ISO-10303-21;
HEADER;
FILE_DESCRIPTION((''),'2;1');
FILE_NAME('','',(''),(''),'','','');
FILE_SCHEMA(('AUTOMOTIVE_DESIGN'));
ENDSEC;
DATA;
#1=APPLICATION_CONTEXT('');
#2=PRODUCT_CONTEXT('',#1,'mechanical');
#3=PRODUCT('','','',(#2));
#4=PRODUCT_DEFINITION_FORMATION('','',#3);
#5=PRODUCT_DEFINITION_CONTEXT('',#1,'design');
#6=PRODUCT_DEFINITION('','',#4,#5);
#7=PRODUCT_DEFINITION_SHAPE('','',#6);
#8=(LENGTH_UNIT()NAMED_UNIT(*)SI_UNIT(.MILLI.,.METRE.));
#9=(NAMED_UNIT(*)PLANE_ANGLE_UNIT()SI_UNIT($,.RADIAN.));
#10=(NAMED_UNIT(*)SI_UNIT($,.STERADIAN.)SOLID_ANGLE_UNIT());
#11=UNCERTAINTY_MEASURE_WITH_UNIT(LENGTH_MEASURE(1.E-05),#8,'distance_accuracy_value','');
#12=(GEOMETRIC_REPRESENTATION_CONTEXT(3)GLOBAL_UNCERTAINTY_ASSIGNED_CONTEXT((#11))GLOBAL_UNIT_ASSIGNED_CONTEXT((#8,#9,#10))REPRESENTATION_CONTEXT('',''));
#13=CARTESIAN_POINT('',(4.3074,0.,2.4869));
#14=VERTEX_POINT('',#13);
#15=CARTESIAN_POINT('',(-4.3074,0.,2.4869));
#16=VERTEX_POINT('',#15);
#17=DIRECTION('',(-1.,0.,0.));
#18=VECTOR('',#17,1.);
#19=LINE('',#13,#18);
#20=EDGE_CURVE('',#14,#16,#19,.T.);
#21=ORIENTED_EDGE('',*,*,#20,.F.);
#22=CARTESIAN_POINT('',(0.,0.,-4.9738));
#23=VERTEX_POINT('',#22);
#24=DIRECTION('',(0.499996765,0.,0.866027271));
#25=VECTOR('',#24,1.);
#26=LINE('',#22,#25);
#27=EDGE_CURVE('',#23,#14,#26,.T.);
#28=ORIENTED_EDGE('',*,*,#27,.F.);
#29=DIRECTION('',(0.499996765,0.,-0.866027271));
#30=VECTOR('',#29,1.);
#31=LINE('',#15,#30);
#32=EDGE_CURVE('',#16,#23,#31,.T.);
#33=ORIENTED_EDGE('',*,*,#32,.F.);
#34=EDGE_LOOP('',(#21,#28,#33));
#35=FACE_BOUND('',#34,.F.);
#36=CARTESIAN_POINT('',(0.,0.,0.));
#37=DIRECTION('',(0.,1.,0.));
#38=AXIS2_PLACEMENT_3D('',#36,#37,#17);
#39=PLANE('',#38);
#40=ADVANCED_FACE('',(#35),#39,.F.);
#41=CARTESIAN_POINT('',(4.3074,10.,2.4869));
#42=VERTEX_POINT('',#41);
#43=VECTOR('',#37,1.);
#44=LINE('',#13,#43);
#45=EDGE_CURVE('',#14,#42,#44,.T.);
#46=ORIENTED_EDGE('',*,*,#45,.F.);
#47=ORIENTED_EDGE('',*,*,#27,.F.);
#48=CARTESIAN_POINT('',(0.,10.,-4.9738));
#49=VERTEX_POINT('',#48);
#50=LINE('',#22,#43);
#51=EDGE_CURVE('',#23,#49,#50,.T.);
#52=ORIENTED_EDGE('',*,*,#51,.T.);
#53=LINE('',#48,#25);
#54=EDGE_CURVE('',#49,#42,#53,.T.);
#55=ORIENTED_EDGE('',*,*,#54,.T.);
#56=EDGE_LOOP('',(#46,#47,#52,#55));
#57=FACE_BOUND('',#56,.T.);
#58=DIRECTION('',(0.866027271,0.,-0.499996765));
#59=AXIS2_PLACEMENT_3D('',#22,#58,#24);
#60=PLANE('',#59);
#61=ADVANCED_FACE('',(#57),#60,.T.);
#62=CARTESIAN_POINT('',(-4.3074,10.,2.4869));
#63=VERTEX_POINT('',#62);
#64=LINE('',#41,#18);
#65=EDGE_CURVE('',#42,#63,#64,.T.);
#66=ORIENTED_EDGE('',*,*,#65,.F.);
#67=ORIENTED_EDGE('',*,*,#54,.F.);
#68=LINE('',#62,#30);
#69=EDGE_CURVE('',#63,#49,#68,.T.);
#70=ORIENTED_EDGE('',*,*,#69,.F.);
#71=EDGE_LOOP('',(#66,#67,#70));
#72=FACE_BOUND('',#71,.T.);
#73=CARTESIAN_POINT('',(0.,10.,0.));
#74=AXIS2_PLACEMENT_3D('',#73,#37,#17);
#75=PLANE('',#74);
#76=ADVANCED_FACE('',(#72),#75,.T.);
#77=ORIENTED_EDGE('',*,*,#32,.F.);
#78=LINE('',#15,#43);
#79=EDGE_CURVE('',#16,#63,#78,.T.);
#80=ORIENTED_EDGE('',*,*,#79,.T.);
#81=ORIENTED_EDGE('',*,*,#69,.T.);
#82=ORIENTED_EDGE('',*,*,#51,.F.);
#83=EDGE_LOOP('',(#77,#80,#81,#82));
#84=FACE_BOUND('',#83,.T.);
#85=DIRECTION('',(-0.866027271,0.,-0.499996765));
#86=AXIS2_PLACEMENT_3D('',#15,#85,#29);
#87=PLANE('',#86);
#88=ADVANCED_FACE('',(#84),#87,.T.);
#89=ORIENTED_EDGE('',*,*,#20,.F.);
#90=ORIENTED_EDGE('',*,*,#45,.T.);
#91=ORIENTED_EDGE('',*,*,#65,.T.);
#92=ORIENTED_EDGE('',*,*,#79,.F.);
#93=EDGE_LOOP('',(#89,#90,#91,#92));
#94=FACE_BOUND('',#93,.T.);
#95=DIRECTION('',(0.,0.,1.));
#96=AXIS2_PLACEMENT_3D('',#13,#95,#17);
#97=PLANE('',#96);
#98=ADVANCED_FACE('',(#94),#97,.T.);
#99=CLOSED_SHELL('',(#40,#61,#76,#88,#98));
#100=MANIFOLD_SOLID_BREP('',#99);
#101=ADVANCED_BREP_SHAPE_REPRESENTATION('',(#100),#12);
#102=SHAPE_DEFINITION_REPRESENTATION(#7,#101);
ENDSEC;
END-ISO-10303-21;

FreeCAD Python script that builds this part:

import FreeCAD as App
import Part
import Sketcher
from FreeCAD import Vector
Q = App.Units.Quantity

doc = App.newDocument("Part")
body = doc.addObject("PartDesign::Body", "Body")

sketch1 = body.newObject("Sketcher::SketchObject", "Sketch")
sketch1.AttachmentSupport = (doc.getObject("XZ_Plane"), [""])
sketch1.MapMode = "FlatFace"
sketch1.addGeometry(Part.LineSegment(Vector(4.3074, 2.4869, 0), Vector(0, -4.9738, 0)), False)
sketch1.addGeometry(Part.LineSegment(Vector(0, -4.9738, 0), Vector(-4.3074, 2.4869, 0)), False)
sketch1.addGeometry(Part.LineSegment(Vector(-4.3074, 2.4869, 0), Vector(4.3074, 2.4869, 0)), False)
sketch1.addConstraint(Sketcher.Constraint("Coincident", 0, 2, 1, 1))
sketch1.addConstraint(Sketcher.Constraint("Coincident", 1, 2, 2, 1))
sketch1.addConstraint(Sketcher.Constraint("Coincident", 2, 2, 0, 1))
sketch1.addConstraint(Sketcher.Constraint("Horizontal", 2))
sketch1.addConstraint(Sketcher.Constraint("PointOnObject", 0, 2, -2))
sketch1.addConstraint(Sketcher.Constraint("Equal", 0, 1))
sketch1.addConstraint(Sketcher.Constraint("Angle", 0, Q("-119.9998 deg")))
sketch1.addConstraint(Sketcher.Constraint("DistanceX", 2, 1, 2, 2, 8.6148))
sketch1.addConstraint(Sketcher.Constraint("DistanceY", -1, 1, 1, 2, 2.487))
pad1 = body.newObject("PartDesign::Pad", "Pad")
pad1.Profile = sketch1
pad1.Length = 10
pad1.Reversed = True

doc.recompute()
